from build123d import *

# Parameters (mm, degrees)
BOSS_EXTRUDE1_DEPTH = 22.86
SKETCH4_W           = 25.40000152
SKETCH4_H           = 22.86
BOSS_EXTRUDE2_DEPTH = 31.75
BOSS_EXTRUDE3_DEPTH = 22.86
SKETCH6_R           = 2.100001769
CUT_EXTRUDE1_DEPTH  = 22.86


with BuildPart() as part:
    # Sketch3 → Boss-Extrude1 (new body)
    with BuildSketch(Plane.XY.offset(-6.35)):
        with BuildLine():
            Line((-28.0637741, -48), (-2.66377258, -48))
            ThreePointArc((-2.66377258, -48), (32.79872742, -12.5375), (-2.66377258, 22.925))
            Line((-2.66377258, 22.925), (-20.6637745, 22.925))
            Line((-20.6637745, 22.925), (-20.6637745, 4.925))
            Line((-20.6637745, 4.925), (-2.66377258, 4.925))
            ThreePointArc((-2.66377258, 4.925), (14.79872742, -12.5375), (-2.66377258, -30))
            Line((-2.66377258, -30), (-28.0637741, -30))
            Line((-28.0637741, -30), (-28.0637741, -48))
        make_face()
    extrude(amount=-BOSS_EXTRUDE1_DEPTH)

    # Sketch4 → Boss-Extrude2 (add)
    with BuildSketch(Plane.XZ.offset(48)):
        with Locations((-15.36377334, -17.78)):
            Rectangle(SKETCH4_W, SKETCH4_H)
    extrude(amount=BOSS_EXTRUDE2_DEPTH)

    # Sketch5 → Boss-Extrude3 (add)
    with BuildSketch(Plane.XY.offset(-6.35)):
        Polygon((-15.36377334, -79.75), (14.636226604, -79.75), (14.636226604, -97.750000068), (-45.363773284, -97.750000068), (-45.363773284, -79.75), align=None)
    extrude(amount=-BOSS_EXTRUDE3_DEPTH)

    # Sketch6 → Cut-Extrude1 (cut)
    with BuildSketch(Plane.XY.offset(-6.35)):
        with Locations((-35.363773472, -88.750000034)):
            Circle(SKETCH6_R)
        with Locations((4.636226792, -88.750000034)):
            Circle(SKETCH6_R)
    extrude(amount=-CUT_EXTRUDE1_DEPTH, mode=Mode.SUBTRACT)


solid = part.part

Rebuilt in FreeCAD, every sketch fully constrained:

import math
import FreeCAD as App
import Part
import Sketcher
from FreeCAD import Vector
Q = App.Units.Quantity


def add_polygon(sketch, points):
    """Adds a closed chain of lines whose ends are joined by coincident constraints."""
    first, n = sketch.GeometryCount, len(points)
    for a, b in zip(points, points[1:] + points[:1]):
        sketch.addGeometry(Part.LineSegment(App.Vector(*a, 0), App.Vector(*b, 0)), False)
    for i in range(n):
        sketch.addConstraint(Sketcher.Constraint("Coincident", first + i, 2, first + (i + 1) % n, 1))

doc = App.newDocument("Part")
body = doc.addObject("PartDesign::Body", "Body")

# Sketch on XY plane
sketch1 = body.newObject("Sketcher::SketchObject", "Sketch")
sketch1.AttachmentSupport = (doc.getObject("XY_Plane"), [""])
sketch1.MapMode = "FlatFace"
sketch1.AttachmentOffset = App.Placement(Vector(0, 0, -0.25 * 25.4), App.Rotation())
sketch1.addGeometry(Part.LineSegment(Vector(-28, -48, 0), Vector(-3, -48, 0)), False)
sketch1.addGeometry(Part.ArcOfCircle(Part.Circle(Vector(-3, -13, 0), Vector(0, 0, 1), 35), math.radians(-90), math.radians(90)), False)
sketch1.addGeometry(Part.LineSegment(Vector(-3, 23, 0), Vector(-21, 23, 0)), False)
sketch1.addGeometry(Part.LineSegment(Vector(-21, 23, 0), Vector(-21, 5, 0)), False)
sketch1.addGeometry(Part.LineSegment(Vector(-21, 5, 0), Vector(-3, 5, 0)), False)
sketch1.addGeometry(Part.ArcOfCircle(Part.Circle(Vector(-3, -13, 0), Vector(0, 0, 1), 17), math.radians(-90), math.radians(90)), False)
sketch1.addGeometry(Part.LineSegment(Vector(-3, -30, 0), Vector(-28, -30, 0)), False)
sketch1.addGeometry(Part.LineSegment(Vector(-28, -30, 0), Vector(-28, -48, 0)), False)
sketch1.addConstraint(Sketcher.Constraint("Tangent", 0, 2, 1, 1))
sketch1.addConstraint(Sketcher.Constraint("Tangent", 1, 2, 2, 1))
sketch1.addConstraint(Sketcher.Constraint("Coincident", 2, 2, 3, 1))
sketch1.addConstraint(Sketcher.Constraint("Coincident", 3, 2, 4, 1))
sketch1.addConstraint(Sketcher.Constraint("Tangent", 4, 2, 5, 2))
sketch1.addConstraint(Sketcher.Constraint("Tangent", 5, 1, 6, 1))
sketch1.addConstraint(Sketcher.Constraint("Coincident", 6, 2, 7, 1))
sketch1.addConstraint(Sketcher.Constraint("Coincident", 7, 2, 0, 1))
sketch1.addConstraint(Sketcher.Constraint("Horizontal", 0))
sketch1.addConstraint(Sketcher.Constraint("Horizontal", 2))
sketch1.addConstraint(Sketcher.Constraint("Vertical", 3))
sketch1.addConstraint(Sketcher.Constraint("Horizontal", 4))
sketch1.addConstraint(Sketcher.Constraint("Horizontal", 6))
sketch1.addConstraint(Sketcher.Constraint("Vertical", 7))
sketch1.addConstraint(Sketcher.Constraint("Coincident", 5, 3, 1, 3))
sketch1.addConstraint(Sketcher.Constraint("Equal", 4, 3))
sketch1.addConstraint(Sketcher.Constraint("DistanceX", 0, 1, 0, 2, Q("1.0000001 in")))
sketch1.addConstraint(Sketcher.Constraint("Radius", 5, Q("0.6875 in")))
sketch1.addConstraint(Sketcher.Constraint("Radius", 1, Q("35.4625 mm")))
sketch1.addConstraint(Sketcher.Constraint("DistanceY", 1, 3, -1, 1, Q("12.5375 mm")))
sketch1.addConstraint(Sketcher.Constraint("DistanceX", 1, 3, -1, 1, Q("2.663773 mm")))
pad1 = body.newObject("PartDesign::Pad", "Pad")
pad1.Profile = sketch1
pad1.Length = Q("0.9 in")
pad1.Reversed = True

# Sketch on XZ plane
sketch2 = body.newObject("Sketcher::SketchObject", "Sketch001")
sketch2.AttachmentSupport = (doc.getObject("XZ_Plane"), [""])
sketch2.MapMode = "FlatFace"
sketch2.AttachmentOffset = App.Placement(Vector(0, 0, 48), App.Rotation())
add_polygon(sketch2, [(-28, -6), (-28, -29), (-3, -29), (-3, -6)])  # lines 0-3
sketch2.addConstraint(Sketcher.Constraint("Vertical", 0))
sketch2.addConstraint(Sketcher.Constraint("Horizontal", 1))
sketch2.addConstraint(Sketcher.Constraint("Vertical", 2))
sketch2.addConstraint(Sketcher.Constraint("Horizontal", 3))
sketch2.addConstraint(Sketcher.Constraint("DistanceX", 1, 1, 1, 2, Q("1.0000001 in")))
sketch2.addConstraint(Sketcher.Constraint("DistanceY", 0, 2, 0, 1, Q("0.9 in")))
sketch2.addConstraint(Sketcher.Constraint("DistanceY", 0, 2, -1, 1, Q("1.15 in")))
sketch2.addConstraint(Sketcher.Constraint("DistanceX", 0, 2, -1, 1, Q("28.063774 mm")))
pad2 = body.newObject("PartDesign::Pad", "Pad001")
pad2.Profile = sketch2
pad2.Length = Q("1.25 in")

# Sketch on XY plane
sketch3 = body.newObject("Sketcher::SketchObject", "Sketch002")
sketch3.AttachmentSupport = (doc.getObject("XY_Plane"), [""])
sketch3.MapMode = "FlatFace"
sketch3.AttachmentOffset = App.Placement(Vector(0, 0, -0.25 * 25.4), App.Rotation())
add_polygon(sketch3, [(15, -80), (-45, -80), (-45, -98), (15, -98)])  # lines 0-3
sketch3.addConstraint(Sketcher.Constraint("Horizontal", 0))
sketch3.addConstraint(Sketcher.Constraint("Vertical", 1))
sketch3.addConstraint(Sketcher.Constraint("Horizontal", 2))
sketch3.addConstraint(Sketcher.Constraint("Vertical", 3))
sketch3.addConstraint(Sketcher.Constraint("DistanceX", 0, 2, 0, 1, Q("60 mm")))
sketch3.addConstraint(Sketcher.Constraint("DistanceY", 1, 2, 1, 1, Q("18 mm")))
sketch3.addConstraint(Sketcher.Constraint("DistanceY", 0, 2, -1, 1, Q("79.75 mm")))
sketch3.addConstraint(Sketcher.Constraint("DistanceX", 0, 2, -1, 1, Q("45.363773 mm")))
pad3 = body.newObject("PartDesign::Pad", "Pad002")
pad3.Profile = sketch3
pad3.Length = Q("0.9 in")
pad3.Reversed = True

# Sketch on XY plane
sketch4 = body.newObject("Sketcher::SketchObject", "Sketch003")
sketch4.AttachmentSupport = (doc.getObject("XY_Plane"), [""])
sketch4.MapMode = "FlatFace"
sketch4.AttachmentOffset = App.Placement(Vector(0, 0, -0.25 * 25.4), App.Rotation())
sketch4.addGeometry(Part.Circle(Vector(-35.4, -88.8, 0), Vector(0, 0, 1), 2.1), False)
sketch4.addGeometry(Part.Circle(Vector(4.6, -88.8, 0), Vector(0, 0, 1), 2.1), False)
sketch4.addConstraint(Sketcher.Constraint("Equal", 0, 1))
sketch4.addConstraint(Sketcher.Constraint("Horizontal", 0, 3, 1, 3))
sketch4.addConstraint(Sketcher.Constraint("Diameter", 0, Q("4.200004 mm")))
sketch4.addConstraint(Sketcher.Constraint("DistanceY", 0, 3, -1, 1, Q("88.75 mm")))
sketch4.addConstraint(Sketcher.Constraint("DistanceX", 0, 3, 1, 3, Q("40 mm")))
sketch4.addConstraint(Sketcher.Constraint("DistanceX", 0, 3, -1, 1, Q("35.363773 mm")))
pocket1 = body.newObject("PartDesign::Pocket", "Pocket")
pocket1.Profile = sketch4
pocket1.Length = Q("0.9 in")

doc.recompute()
